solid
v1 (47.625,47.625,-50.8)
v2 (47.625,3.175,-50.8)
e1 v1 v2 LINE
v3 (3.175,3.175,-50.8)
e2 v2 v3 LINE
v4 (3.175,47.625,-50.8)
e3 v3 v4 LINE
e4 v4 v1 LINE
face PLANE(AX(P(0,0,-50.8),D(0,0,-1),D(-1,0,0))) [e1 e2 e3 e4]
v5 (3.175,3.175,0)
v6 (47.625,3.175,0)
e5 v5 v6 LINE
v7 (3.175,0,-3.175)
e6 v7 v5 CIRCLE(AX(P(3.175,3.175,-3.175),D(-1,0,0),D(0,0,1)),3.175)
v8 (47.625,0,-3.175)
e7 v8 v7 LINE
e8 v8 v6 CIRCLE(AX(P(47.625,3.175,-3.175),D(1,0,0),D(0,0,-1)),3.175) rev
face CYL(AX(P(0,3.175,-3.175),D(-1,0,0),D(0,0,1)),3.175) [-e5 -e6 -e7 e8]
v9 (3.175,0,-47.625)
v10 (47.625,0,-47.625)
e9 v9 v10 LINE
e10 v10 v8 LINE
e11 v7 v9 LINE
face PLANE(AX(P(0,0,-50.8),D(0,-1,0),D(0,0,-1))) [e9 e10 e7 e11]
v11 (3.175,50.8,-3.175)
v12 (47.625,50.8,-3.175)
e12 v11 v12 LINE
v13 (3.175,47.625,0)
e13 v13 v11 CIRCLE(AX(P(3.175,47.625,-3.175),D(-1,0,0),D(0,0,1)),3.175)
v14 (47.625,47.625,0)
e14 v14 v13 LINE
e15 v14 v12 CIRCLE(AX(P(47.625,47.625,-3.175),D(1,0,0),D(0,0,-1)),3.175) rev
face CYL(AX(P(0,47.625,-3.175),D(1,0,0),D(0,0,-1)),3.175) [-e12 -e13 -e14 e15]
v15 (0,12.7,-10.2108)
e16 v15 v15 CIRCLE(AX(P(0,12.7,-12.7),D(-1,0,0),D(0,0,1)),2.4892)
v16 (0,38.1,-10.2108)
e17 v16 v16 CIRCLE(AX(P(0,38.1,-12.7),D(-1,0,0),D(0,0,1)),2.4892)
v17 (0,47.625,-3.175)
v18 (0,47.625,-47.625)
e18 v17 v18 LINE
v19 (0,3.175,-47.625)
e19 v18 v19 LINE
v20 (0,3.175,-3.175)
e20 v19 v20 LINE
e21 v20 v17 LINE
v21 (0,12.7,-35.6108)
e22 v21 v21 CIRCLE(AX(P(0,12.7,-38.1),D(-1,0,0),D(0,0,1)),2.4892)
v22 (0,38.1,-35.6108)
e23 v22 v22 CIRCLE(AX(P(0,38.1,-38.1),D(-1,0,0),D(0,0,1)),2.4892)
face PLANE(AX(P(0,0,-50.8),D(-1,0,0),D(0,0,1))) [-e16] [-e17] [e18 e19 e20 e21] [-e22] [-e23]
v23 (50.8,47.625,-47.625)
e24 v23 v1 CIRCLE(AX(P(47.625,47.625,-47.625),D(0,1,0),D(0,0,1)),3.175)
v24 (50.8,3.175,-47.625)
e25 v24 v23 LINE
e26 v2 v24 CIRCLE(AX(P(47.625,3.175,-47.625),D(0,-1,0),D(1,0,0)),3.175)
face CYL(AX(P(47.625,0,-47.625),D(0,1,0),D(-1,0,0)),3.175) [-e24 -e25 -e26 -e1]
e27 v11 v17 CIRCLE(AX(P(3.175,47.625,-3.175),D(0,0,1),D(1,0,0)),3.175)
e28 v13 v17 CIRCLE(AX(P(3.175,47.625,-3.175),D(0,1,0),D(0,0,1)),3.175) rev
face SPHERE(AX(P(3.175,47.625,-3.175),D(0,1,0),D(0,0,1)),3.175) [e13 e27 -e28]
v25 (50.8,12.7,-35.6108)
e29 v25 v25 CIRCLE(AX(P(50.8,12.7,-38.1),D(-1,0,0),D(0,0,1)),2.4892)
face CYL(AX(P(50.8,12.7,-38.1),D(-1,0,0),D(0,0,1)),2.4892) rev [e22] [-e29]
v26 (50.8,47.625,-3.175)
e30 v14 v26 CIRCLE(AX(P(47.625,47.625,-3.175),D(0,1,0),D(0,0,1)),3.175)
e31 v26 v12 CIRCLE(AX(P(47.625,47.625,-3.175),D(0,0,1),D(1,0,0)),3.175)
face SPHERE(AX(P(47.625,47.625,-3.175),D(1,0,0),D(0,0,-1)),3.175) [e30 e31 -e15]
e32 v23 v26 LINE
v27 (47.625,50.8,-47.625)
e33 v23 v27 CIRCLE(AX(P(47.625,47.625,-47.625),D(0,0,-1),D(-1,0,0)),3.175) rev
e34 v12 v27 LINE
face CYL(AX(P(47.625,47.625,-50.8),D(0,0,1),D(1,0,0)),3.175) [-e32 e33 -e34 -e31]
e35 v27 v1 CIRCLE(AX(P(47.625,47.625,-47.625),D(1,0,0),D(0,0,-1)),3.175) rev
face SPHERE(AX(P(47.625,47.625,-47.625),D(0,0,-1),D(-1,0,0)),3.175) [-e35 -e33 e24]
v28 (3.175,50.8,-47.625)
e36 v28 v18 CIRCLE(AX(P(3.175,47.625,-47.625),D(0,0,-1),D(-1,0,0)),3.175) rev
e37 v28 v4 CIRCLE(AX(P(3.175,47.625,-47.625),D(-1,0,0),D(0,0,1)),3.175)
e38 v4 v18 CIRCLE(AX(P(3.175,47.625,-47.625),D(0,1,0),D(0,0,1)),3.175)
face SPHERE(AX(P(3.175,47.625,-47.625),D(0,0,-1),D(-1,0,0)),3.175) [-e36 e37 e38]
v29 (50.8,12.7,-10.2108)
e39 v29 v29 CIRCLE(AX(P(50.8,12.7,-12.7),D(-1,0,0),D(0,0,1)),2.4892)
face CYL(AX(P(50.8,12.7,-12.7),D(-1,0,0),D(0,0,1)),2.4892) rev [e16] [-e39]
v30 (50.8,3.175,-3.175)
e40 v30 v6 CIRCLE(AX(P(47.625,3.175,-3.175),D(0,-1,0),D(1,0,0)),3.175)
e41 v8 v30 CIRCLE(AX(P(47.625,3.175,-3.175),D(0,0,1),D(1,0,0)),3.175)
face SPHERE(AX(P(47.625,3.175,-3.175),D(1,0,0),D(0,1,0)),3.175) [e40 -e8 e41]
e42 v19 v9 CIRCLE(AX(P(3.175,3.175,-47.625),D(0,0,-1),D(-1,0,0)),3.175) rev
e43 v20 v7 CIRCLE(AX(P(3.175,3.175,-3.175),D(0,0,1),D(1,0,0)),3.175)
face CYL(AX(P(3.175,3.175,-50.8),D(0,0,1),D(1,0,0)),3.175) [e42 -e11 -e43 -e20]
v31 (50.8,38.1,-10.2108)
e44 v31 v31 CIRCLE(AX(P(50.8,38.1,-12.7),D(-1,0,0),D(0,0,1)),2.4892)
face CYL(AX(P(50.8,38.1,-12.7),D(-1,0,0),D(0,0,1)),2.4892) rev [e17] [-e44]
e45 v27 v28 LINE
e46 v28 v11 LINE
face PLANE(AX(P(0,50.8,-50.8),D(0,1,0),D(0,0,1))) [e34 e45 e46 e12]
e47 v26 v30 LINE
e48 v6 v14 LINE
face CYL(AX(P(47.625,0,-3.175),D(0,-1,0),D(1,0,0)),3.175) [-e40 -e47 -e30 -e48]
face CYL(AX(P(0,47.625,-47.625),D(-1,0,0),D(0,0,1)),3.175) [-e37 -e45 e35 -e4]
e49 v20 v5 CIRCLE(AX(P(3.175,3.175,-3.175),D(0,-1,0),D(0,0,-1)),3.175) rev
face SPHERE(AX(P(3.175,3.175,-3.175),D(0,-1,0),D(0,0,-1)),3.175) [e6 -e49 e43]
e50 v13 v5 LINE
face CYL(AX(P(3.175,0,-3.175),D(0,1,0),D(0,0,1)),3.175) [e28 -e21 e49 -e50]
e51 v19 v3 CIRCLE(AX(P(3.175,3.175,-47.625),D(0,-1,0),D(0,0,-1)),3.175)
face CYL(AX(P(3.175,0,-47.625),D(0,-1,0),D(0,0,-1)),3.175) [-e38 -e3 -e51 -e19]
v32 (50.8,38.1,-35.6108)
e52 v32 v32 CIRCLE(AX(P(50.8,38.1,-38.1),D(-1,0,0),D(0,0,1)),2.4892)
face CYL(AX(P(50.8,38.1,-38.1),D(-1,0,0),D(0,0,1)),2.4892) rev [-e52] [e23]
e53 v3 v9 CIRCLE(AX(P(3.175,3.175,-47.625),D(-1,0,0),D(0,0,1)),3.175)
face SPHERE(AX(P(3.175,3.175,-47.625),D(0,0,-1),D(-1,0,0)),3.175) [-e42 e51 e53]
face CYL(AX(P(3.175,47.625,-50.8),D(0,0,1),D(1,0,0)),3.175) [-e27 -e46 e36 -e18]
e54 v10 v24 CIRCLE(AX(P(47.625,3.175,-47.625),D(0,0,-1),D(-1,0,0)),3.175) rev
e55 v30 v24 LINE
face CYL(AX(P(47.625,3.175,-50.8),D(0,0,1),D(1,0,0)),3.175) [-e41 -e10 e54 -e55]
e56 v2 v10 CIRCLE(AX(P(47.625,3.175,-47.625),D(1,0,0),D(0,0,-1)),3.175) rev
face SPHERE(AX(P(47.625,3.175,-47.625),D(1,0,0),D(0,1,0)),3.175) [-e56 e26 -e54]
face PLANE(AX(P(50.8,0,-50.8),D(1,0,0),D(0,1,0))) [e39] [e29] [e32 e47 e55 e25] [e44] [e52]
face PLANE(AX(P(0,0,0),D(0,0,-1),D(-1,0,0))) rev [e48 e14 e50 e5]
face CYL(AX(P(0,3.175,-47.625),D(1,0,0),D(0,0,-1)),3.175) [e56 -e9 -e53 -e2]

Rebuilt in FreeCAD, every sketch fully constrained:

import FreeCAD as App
import Part
import Sketcher
from FreeCAD import Vector
Q = App.Units.Quantity

doc = App.newDocument("Part")
params = doc.addObject("Spreadsheet::Sheet", "Params")
for row, (alias, value) in enumerate([
    ("sketch1_width", "2 in"),
    ("pad1_length", "2 in"),
    ("fillet_radius", "0.125 in"),
    ("sketch2_diameter", "0.196 in"),
], start=1):
    params.set(f"A{row}", alias)
    params.set(f"B{row}", "=" + value)
    params.setAlias(f"B{row}", alias)

body = doc.addObject("PartDesign::Body", "Body")

# Sketch on XY plane
sketch1 = body.newObject("Sketcher::SketchObject", "Sketch")
sketch1.AttachmentSupport = (doc.getObject("XY_Plane"), [""])
sketch1.MapMode = "FlatFace"
sketch1.addGeometry([
    Part.LineSegment(Vector(0, 51, 0), Vector(0, 0, 0)),
    Part.LineSegment(Vector(0, 0, 0), Vector(51, 0, 0)),
    Part.LineSegment(Vector(51, 0, 0), Vector(51, 51, 0)),
    Part.LineSegment(Vector(51, 51, 0), Vector(0, 51, 0)),
], False)
sketch1.addConstraint([
    Sketcher.Constraint("Coincident", 0, 2, 1, 1),
    Sketcher.Constraint("Coincident", 1, 2, 2, 1),
    Sketcher.Constraint("Coincident", 2, 2, 3, 1),
    Sketcher.Constraint("Coincident", 3, 2, 0, 1),
    Sketcher.Constraint("Vertical", 0),
    Sketcher.Constraint("Horizontal", 1),
    Sketcher.Constraint("Vertical", 2),
    Sketcher.Constraint("Horizontal", 3),
    Sketcher.Constraint("Coincident", 0, 2, -1, 1),
    Sketcher.Constraint("Equal", 3, 0),
    Sketcher.Constraint("DistanceX", 1, 1, 1, 2, Q("2 in")),
])
sketch1.setExpression("Constraints[10]", "Params.sketch1_width")
pad1 = body.newObject("PartDesign::Pad", "Pad")
pad1.Profile = sketch1
pad1.setExpression("Length", "Params.pad1_length")
pad1.Reversed = True
doc.recompute()

fillet = body.newObject("PartDesign::Fillet", "Fillet")
fillet.Base = (pad1, ["Edge1"])
fillet.UseAllEdges = True
fillet.setExpression("Radius", "Params.fillet_radius")

# Sketch on YZ plane
sketch2 = body.newObject("Sketcher::SketchObject", "Sketch001")
sketch2.AttachmentSupport = (doc.getObject("YZ_Plane"), [""])
sketch2.MapMode = "FlatFace"
sketch2.addGeometry([
    Part.Circle(Vector(12.7, -38.1, 0), Vector(0, 0, 1), 2.5),
    Part.Circle(Vector(12.7, -12.7, 0), Vector(0, 0, 1), 2.5),
    Part.Circle(Vector(38.1, -12.7, 0), Vector(0, 0, 1), 2.5),
    Part.Circle(Vector(38.1, -38.1, 0), Vector(0, 0, 1), 2.5),
], False)
sketch2.addConstraint([
    Sketcher.Constraint("Equal", 0, 1),
    Sketcher.Constraint("Equal", 1, 2),
    Sketcher.Constraint("Equal", 2, 3),
    Sketcher.Constraint("Horizontal", 1, 3, 2, 3),
    Sketcher.Constraint("Horizontal", 0, 3, 3, 3),
    Sketcher.Constraint("Vertical", 0, 3, 1, 3),
    Sketcher.Constraint("Vertical", 2, 3, 3, 3),
    Sketcher.Constraint("Diameter", 0, Q("0.196 in")),
    Sketcher.Constraint("DistanceY", 0, 3, 1, 3, Q("1 in")),
    Sketcher.Constraint("DistanceX", 1, 3, 2, 3, Q("1 in")),
    Sketcher.Constraint("DistanceX", -1, 1, 0, 3, Q("0.5 in")),
    Sketcher.Constraint("DistanceY", 0, 3, -1, 1, Q("1.5 in")),
])
sketch2.setExpression("Constraints[7]", "Params.sketch2_diameter")
pocket1 = body.newObject("PartDesign::Pocket", "Pocket")
pocket1.Profile = sketch2
pocket1.Type = "ThroughAll"
pocket1.Reversed = True

doc.recompute()
